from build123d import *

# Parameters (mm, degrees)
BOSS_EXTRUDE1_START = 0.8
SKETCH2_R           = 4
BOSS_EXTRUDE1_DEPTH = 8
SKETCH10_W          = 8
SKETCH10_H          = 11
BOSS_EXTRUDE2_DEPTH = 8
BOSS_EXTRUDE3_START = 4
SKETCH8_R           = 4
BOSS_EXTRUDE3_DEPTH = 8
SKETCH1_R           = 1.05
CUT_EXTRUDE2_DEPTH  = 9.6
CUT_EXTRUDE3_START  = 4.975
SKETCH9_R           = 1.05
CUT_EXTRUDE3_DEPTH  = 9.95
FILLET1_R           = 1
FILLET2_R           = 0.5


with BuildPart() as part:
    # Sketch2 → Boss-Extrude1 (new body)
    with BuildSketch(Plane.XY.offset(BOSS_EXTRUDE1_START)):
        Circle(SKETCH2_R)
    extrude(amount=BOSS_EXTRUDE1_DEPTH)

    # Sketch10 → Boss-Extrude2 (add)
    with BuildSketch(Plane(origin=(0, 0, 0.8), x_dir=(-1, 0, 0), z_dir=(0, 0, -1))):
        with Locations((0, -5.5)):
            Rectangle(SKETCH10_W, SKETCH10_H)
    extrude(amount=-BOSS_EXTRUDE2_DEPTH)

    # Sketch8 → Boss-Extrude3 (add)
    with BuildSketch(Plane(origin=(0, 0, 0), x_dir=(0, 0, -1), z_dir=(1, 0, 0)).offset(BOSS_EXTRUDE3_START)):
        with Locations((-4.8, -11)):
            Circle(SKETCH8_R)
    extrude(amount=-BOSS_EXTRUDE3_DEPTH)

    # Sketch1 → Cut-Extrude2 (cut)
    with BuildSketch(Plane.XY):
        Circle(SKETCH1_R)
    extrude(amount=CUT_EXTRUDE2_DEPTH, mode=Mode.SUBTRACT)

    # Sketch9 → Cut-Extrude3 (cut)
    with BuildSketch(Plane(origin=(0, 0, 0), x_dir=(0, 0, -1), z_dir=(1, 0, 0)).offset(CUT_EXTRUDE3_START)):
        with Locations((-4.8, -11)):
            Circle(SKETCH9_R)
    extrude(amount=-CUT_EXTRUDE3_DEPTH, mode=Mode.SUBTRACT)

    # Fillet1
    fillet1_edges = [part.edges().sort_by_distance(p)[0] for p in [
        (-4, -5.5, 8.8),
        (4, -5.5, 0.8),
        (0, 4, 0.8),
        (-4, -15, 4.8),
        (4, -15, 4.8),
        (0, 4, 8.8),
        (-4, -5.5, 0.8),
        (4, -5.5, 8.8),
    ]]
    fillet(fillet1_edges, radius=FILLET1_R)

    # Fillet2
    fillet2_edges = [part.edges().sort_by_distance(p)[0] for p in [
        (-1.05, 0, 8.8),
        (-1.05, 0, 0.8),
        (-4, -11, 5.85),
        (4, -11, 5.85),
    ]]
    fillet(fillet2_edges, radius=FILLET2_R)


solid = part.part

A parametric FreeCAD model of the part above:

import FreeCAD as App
import Part
import Sketcher
from FreeCAD import Vector


def edges_at(feature, points):
    """Names of the edges that pass closest to the given points."""
    edges = feature.Shape.Edges
    near = lambda p: min(range(len(edges)), key=lambda i: edges[i].distToShape(Part.Vertex(*p))[0])
    return sorted({f"Edge{near(p) + 1}" for p in points})


def add_polygon(sketch, points):
    """Adds a closed chain of lines whose ends are joined by coincident constraints."""
    first, n = sketch.GeometryCount, len(points)
    for a, b in zip(points, points[1:] + points[:1]):
        sketch.addGeometry(Part.LineSegment(App.Vector(*a, 0), App.Vector(*b, 0)), False)
    for i in range(n):
        sketch.addConstraint(Sketcher.Constraint("Coincident", first + i, 2, first + (i + 1) % n, 1))

doc = App.newDocument("Part")
body = doc.addObject("PartDesign::Body", "Body")

sketch1 = body.newObject("Sketcher::SketchObject", "Sketch")
sketch1.AttachmentSupport = (doc.getObject("XY_Plane"), [""])
sketch1.MapMode = "FlatFace"
sketch1.AttachmentOffset = App.Placement(Vector(0, 0, 0.8), App.Rotation())
sketch1.addGeometry(Part.Circle(Vector(0, 0, 0), Vector(0, 0, 1), 4), False)
sketch1.addConstraint([
    Sketcher.Constraint("Coincident", 0, 3, -1, 1),
    Sketcher.Constraint("Diameter", 0, 8.0),
])
pad1 = body.newObject("PartDesign::Pad", "Pad")
pad1.Profile = sketch1
pad1.Length = 8

sketch2 = body.newObject("Sketcher::SketchObject", "Sketch001")
sketch2.AttachmentSupport = (doc.getObject("XY_Plane"), [""])
sketch2.MapMode = "FlatFace"
sketch2.AttachmentOffset = App.Placement(Vector(0, 0, 0.8), App.Rotation())
add_polygon(sketch2, [(4, 0), (4, -11), (-4, -11), (-4, 0)])
sketch2.addConstraint([
    Sketcher.Constraint("Vertical", 0),
    Sketcher.Constraint("Horizontal", 1),
    Sketcher.Constraint("Vertical", 2),
    Sketcher.Constraint("Horizontal", 3),
    Sketcher.Constraint("Symmetric", 2, 2, 3, 2, -1, 1),
    Sketcher.Constraint("DistanceX", 1, 2, 1, 1, 8.0),
    Sketcher.Constraint("DistanceY", 0, 2, 0, 1, 11.0),
])
pad2 = body.newObject("PartDesign::Pad", "Pad001")
pad2.Profile = sketch2
pad2.Length = 8

sketch3 = body.newObject("Sketcher::SketchObject", "Sketch002")
sketch3.AttachmentSupport = (doc.getObject("YZ_Plane"), [""])
sketch3.MapMode = "FlatFace"
sketch3.AttachmentOffset = App.Placement(Vector(0, 0, 4), App.Rotation())
sketch3.addGeometry(Part.Circle(Vector(-11, 4.8, 0), Vector(0, 0, 1), 4), False)
sketch3.addConstraint([
    Sketcher.Constraint("Diameter", 0, 8.0),
    Sketcher.Constraint("DistanceX", 0, 3, -1, 1, 11.0),
    Sketcher.Constraint("DistanceY", -1, 1, 0, 3, 4.8),
])
pad3 = body.newObject("PartDesign::Pad", "Pad002")
pad3.Profile = sketch3
pad3.Length = 8
pad3.Reversed = True

sketch4 = body.newObject("Sketcher::SketchObject", "Sketch003")
sketch4.AttachmentSupport = (doc.getObject("XY_Plane"), [""])
sketch4.MapMode = "FlatFace"
sketch4.addGeometry(Part.Circle(Vector(0, 0, 0), Vector(0, 0, 1), 1.05), False)
sketch4.addConstraint([
    Sketcher.Constraint("Coincident", 0, 3, -1, 1),
    Sketcher.Constraint("Diameter", 0, 2.1),
])
pocket1 = body.newObject("PartDesign::Pocket", "Pocket")
pocket1.Profile = sketch4
pocket1.Length = 9.6
pocket1.Reversed = True

sketch5 = body.newObject("Sketcher::SketchObject", "Sketch004")
sketch5.AttachmentSupport = (doc.getObject("YZ_Plane"), [""])
sketch5.MapMode = "FlatFace"
sketch5.AttachmentOffset = App.Placement(Vector(0, 0, 4.975), App.Rotation())
sketch5.addGeometry(Part.Circle(Vector(-11, 4.8, 0), Vector(0, 0, 1), 1.05), False)
sketch5.addConstraint([
    Sketcher.Constraint("Diameter", 0, 2.1),
    Sketcher.Constraint("DistanceX", 0, 3, -1, 1, 11.0),
    Sketcher.Constraint("DistanceY", -1, 1, 0, 3, 4.8),
])
pocket2 = body.newObject("PartDesign::Pocket", "Pocket001")
pocket2.Profile = sketch5
pocket2.Length = 9.95
doc.recompute()

fillet = body.newObject("PartDesign::Fillet", "Fillet")
fillet.Base = (pocket2, edges_at(pocket2, [
    (-4, -5.5, 8.8),
    (4, -5.5, 0.8),
    (0, 4, 0.8),
    (-4, -15, 4.8),
    (4, -15, 4.8),
    (0, 4, 8.8),
    (-4, -5.5, 0.8),
    (4, -5.5, 8.8),
]))
fillet.Radius = 1
doc.recompute()

fillet2 = body.newObject("PartDesign::Fillet", "Fillet001")
fillet2.Base = (fillet, edges_at(fillet, [
    (-1.05, 0, 8.8),
    (-1.05, 0, 0.8),
    (-4, -11, 5.85),
    (4, -11, 5.85),
]))
fillet2.Radius = 0.5

doc.recompute()
